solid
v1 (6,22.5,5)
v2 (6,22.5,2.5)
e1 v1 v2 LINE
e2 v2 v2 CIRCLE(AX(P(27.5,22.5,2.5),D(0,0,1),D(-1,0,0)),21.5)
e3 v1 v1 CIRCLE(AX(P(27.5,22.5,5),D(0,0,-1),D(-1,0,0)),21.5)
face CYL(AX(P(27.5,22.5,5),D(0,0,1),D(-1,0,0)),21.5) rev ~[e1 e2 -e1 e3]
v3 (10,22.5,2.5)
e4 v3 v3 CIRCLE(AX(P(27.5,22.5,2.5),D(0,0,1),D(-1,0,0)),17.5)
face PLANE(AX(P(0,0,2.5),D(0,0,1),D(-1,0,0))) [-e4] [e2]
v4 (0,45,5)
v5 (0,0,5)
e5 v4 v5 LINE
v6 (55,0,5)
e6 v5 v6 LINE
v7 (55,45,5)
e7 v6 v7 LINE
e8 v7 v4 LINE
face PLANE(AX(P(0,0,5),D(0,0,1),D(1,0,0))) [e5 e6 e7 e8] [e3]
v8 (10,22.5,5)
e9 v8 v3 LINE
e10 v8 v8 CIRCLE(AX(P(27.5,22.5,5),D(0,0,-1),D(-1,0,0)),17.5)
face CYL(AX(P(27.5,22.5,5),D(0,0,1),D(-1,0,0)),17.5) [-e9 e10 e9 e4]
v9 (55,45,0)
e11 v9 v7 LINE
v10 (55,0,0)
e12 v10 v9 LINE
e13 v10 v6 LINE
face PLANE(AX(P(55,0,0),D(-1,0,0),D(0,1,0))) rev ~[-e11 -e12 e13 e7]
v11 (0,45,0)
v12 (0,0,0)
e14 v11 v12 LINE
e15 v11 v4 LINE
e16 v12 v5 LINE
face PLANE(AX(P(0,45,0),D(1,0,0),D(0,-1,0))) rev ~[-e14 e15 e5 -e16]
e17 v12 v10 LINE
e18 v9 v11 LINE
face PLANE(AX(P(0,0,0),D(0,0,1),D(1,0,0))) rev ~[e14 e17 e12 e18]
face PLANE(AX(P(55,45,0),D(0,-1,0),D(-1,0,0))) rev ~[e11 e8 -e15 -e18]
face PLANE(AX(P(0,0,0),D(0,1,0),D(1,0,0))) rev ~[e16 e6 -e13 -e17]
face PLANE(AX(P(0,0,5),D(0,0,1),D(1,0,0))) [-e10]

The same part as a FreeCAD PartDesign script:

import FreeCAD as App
import Part
import Sketcher


def add_polygon(sketch, points):
    """Adds a closed chain of lines whose ends are joined by coincident constraints."""
    first, n = sketch.GeometryCount, len(points)
    for a, b in zip(points, points[1:] + points[:1]):
        sketch.addGeometry(Part.LineSegment(App.Vector(*a, 0), App.Vector(*b, 0)), False)
    for i in range(n):
        sketch.addConstraint(Sketcher.Constraint("Coincident", first + i, 2, first + (i + 1) % n, 1))

doc = App.newDocument("Part")
body = doc.addObject("PartDesign::Body", "Body")

# Sketch on XY plane
sketch1 = body.newObject("Sketcher::SketchObject", "Sketch")
sketch1.AttachmentSupport = (doc.getObject("XY_Plane"), [""])
sketch1.MapMode = "FlatFace"
add_polygon(sketch1, [(0, 45), (0, 0), (55, 0), (55, 45)])  # lines 0-3
sketch1.addConstraint(Sketcher.Constraint("Vertical", 0))
sketch1.addConstraint(Sketcher.Constraint("Horizontal", 1))
sketch1.addConstraint(Sketcher.Constraint("Vertical", 2))
sketch1.addConstraint(Sketcher.Constraint("Horizontal", 3))
sketch1.addConstraint(Sketcher.Constraint("Coincident", 0, 2, -1, 1))
sketch1.addConstraint(Sketcher.Constraint("DistanceX", 1, 1, 1, 2, 55.0))
sketch1.addConstraint(Sketcher.Constraint("DistanceY", 0, 2, 0, 1, 45.0))
pad1 = body.newObject("PartDesign::Pad", "Pad")
pad1.Profile = sketch1
pad1.Length = 5

# Sketch on XY plane
sketch2 = body.newObject("Sketcher::SketchObject", "Sketch001")
sketch2.AttachmentSupport = (doc.getObject("XY_Plane"), [""])
sketch2.MapMode = "FlatFace"
sketch2.AttachmentOffset = App.Placement(App.Vector(0, 0, 5), App.Rotation())
sketch2.addGeometry(Part.Circle(App.Vector(28, 22, 0), App.Vector(0, 0, 1), 22), False)
sketch2.addGeometry(Part.Circle(App.Vector(28, 22, 0), App.Vector(0, 0, 1), 18), False)
sketch2.addConstraint(Sketcher.Constraint("Coincident", 1, 3, 0, 3))
sketch2.addConstraint(Sketcher.Constraint("Diameter", 0, 43.0))
sketch2.addConstraint(Sketcher.Constraint("Diameter", 1, 35.0))
sketch2.addConstraint(Sketcher.Constraint("DistanceX", -1, 1, 0, 3, 27.5))
sketch2.addConstraint(Sketcher.Constraint("DistanceY", -1, 1, 0, 3, 22.5))
pocket1 = body.newObject("PartDesign::Pocket", "Pocket")
pocket1.Profile = sketch2
pocket1.Length = 2.5

doc.recompute()
